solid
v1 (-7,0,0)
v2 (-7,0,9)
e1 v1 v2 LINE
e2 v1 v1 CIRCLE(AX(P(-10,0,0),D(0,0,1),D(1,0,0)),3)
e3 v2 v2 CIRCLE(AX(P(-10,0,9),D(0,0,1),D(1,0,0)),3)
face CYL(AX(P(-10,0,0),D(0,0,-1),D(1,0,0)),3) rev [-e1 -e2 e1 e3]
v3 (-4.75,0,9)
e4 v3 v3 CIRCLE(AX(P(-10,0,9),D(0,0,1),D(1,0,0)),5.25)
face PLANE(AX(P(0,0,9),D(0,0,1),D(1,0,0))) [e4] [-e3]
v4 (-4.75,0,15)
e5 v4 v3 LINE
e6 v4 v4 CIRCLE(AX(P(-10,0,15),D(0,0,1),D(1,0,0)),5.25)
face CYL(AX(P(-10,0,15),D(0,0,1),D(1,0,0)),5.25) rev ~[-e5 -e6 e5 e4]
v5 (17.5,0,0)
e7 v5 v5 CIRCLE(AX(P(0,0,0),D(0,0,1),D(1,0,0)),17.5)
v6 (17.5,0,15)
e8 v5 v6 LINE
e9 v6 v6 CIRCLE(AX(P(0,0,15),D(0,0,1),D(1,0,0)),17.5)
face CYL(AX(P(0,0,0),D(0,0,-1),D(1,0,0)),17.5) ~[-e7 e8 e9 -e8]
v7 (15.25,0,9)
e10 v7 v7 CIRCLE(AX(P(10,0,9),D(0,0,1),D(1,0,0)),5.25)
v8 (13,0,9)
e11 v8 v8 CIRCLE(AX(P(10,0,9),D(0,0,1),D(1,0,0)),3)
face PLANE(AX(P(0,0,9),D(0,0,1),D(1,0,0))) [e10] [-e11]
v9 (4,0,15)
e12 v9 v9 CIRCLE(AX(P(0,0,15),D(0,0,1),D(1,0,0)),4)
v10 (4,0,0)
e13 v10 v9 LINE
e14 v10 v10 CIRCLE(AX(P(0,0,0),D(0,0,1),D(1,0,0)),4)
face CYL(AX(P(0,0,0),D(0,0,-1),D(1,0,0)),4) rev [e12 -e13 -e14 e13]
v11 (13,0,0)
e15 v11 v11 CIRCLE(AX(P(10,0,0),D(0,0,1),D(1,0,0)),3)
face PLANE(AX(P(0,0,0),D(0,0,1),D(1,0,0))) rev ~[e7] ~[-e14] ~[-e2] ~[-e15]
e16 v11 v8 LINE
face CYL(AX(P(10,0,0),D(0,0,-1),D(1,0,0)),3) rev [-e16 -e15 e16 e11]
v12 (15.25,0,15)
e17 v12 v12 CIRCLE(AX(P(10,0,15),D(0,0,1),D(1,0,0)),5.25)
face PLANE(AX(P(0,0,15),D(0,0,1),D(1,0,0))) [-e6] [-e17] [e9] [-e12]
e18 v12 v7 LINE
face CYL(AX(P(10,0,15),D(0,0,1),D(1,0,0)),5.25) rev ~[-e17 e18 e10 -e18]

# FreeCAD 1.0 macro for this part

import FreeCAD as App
import Part
import Sketcher

V = App.Vector

doc = App.newDocument("Part")
body = doc.addObject("PartDesign::Body", "Body")

sketch1 = doc.addObject("Sketcher::SketchObject", "Sketch")
body.addObject(sketch1)
sketch1.AttachmentSupport = (doc.XY_Plane, [""])
sketch1.MapMode = "FlatFace"
sketch1.addGeometry(Part.Circle(V(0, 0, 0), V(0, 0, 1), 17.5), False)
sketch1.addGeometry(Part.Circle(V(-10, 0, 0), V(0, 0, 1), 3), False)
sketch1.addGeometry(Part.Circle(V(0, 0, 0), V(0, 0, 1), 4), False)
sketch1.addGeometry(Part.Circle(V(10, 0, 0), V(0, 0, 1), 3), False)
sketch1.addConstraint(Sketcher.Constraint("Coincident", 0, 3, -1, 1))
sketch1.addConstraint(Sketcher.Constraint("Coincident", 2, 3, -1, 1))
sketch1.addConstraint(Sketcher.Constraint("Equal", 1, 3))
sketch1.addConstraint(Sketcher.Constraint("Symmetric", 1, 3, 3, 3, -1, 1))
sketch1.addConstraint(Sketcher.Constraint("PointOnObject", 1, 3, -1))
sketch1.addConstraint(Sketcher.Constraint("Diameter", 0, 35.0))
sketch1.addConstraint(Sketcher.Constraint("Diameter", 1, 6.0))
sketch1.addConstraint(Sketcher.Constraint("Diameter", 2, 8.0))
sketch1.addConstraint(Sketcher.Constraint("DistanceX", 1, 3, 3, 3, 20.0))
pad1 = doc.addObject("PartDesign::Pad", "Pad")
body.addObject(pad1)
pad1.Profile = sketch1
pad1.Length = 15

sketch2 = doc.addObject("Sketcher::SketchObject", "Sketch001")
body.addObject(sketch2)
sketch2.AttachmentSupport = (doc.XY_Plane, [""])
sketch2.MapMode = "FlatFace"
sketch2.AttachmentOffset = App.Placement(V(0, 0, 15), App.Rotation())
sketch2.addGeometry(Part.Circle(V(-10, 0, 0), V(0, 0, 1), 5.2), False)
sketch2.addGeometry(Part.Circle(V(-10, 0, 0), V(0, 0, 1), 3), False)
sketch2.addGeometry(Part.Circle(V(10, 0, 0), V(0, 0, 1), 5.2), False)
sketch2.addGeometry(Part.Circle(V(10, 0, 0), V(0, 0, 1), 3), False)
sketch2.addConstraint(Sketcher.Constraint("Coincident", 1, 3, 0, 3))
sketch2.addConstraint(Sketcher.Constraint("Coincident", 3, 3, 2, 3))
sketch2.addConstraint(Sketcher.Constraint("Equal", 0, 2))
sketch2.addConstraint(Sketcher.Constraint("Equal", 1, 3))
sketch2.addConstraint(Sketcher.Constraint("Symmetric", 0, 3, 2, 3, -1, 1))
sketch2.addConstraint(Sketcher.Constraint("PointOnObject", 0, 3, -1))
sketch2.addConstraint(Sketcher.Constraint("Diameter", 0, 10.5))
sketch2.addConstraint(Sketcher.Constraint("Diameter", 1, 6.0))
sketch2.addConstraint(Sketcher.Constraint("DistanceX", 0, 3, -1, 1, 10.0))
pocket1 = doc.addObject("PartDesign::Pocket", "Pocket")
body.addObject(pocket1)
pocket1.Profile = sketch2
pocket1.Length = 6

doc.recompute()
